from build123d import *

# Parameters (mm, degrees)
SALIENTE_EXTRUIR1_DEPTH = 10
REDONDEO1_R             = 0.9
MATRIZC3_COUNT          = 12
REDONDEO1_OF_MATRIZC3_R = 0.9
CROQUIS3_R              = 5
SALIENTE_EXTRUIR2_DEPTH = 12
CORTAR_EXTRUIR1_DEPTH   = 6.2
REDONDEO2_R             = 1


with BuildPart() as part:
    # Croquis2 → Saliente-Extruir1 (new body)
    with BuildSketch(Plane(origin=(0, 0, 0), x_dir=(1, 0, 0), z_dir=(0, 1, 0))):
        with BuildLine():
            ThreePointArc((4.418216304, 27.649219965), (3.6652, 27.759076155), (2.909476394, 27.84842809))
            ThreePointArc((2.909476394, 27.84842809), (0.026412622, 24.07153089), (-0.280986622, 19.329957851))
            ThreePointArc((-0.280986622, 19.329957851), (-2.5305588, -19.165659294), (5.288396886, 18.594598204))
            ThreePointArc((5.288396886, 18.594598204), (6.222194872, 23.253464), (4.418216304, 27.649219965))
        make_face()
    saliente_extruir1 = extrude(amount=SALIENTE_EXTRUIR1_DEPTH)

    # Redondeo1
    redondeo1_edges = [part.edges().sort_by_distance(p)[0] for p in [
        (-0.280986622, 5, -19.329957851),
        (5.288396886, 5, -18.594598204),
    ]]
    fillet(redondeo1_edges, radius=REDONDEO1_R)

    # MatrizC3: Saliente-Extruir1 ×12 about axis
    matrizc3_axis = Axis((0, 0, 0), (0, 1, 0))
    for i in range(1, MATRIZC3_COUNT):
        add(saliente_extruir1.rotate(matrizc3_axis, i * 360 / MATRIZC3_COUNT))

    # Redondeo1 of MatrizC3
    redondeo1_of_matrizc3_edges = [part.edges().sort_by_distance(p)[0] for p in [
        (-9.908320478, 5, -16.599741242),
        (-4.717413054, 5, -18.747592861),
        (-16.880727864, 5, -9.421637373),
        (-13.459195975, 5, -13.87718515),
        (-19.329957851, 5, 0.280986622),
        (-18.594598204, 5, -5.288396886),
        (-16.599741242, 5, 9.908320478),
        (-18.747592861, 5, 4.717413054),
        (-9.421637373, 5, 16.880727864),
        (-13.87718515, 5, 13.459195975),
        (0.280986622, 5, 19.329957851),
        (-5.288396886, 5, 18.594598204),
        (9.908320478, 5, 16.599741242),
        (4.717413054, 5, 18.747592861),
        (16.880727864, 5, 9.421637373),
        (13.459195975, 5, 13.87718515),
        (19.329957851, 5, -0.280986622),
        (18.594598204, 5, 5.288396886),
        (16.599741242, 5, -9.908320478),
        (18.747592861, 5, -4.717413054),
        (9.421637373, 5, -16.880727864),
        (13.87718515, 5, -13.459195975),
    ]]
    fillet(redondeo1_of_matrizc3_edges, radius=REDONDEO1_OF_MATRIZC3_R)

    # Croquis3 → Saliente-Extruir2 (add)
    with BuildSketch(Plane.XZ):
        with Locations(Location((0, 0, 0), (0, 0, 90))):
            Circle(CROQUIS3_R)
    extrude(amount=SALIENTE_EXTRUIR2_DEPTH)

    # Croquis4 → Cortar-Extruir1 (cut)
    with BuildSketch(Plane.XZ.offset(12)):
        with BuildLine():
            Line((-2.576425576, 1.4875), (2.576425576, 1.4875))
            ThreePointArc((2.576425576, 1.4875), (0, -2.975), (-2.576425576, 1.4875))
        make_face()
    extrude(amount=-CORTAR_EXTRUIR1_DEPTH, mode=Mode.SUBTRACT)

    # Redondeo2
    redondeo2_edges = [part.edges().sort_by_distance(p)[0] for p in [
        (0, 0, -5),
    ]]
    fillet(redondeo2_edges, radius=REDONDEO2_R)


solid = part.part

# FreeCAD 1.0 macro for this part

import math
import FreeCAD as App
import Part
import Sketcher

V = App.Vector
Q = App.Units.Quantity


def edges_at(feature, points):
    """Names of the edges that pass closest to the given points."""
    edges = feature.Shape.Edges
    near = lambda p: min(range(len(edges)), key=lambda i: edges[i].distToShape(Part.Vertex(*p))[0])
    return sorted({f"Edge{near(p) + 1}" for p in points})

doc = App.newDocument("Part")
body = doc.addObject("PartDesign::Body", "Body")

# Sketch on XZ plane
sketch1 = doc.addObject("Sketcher::SketchObject", "Sketch")
body.addObject(sketch1)
sketch1.AttachmentSupport = (doc.XZ_Plane, [""])
sketch1.MapMode = "FlatFace"
sketch1.addGeometry([
    Part.ArcOfCircle(Part.Circle(V(0, 0, 0), V(0, 0, 1), 28), math.radians(-84.04), math.radians(-80.92)),
    Part.ArcOfCircle(Part.Circle(V(7.7, -21.2, 0), V(0, 0, 1), 8.2), math.radians(167), math.radians(234)),
    Part.ArcOfCircle(Part.Circle(V(0, 0, 0), V(0, 0, 1), 19.3), math.radians(-74), math.radians(269)),
    Part.ArcOfCircle(Part.Circle(V(-1.9, -22.5, 0), V(0, 0, 1), 8.2), math.radians(-39), math.radians(28)),
], False)
sketch1.addConstraint([
    Sketcher.Constraint("Coincident", 0, 1, 1, 2),
    Sketcher.Constraint("Coincident", 1, 1, 2, 2),
    Sketcher.Constraint("Coincident", 2, 1, 3, 2),
    Sketcher.Constraint("Coincident", 3, 1, 0, 2),
    Sketcher.Constraint("Coincident", 0, 3, -1, 1),
    Sketcher.Constraint("Coincident", 2, 3, -1, 1),
    Sketcher.Constraint("Equal", 1, 3),
    Sketcher.Constraint("Radius", 2, Q("19.332 mm")),
    Sketcher.Constraint("Radius", 0, Q("27.999998 mm")),
    Sketcher.Constraint("Radius", 1, Q("8.208656 mm")),
    Sketcher.Constraint("DistanceY", 3, 3, -1, 1, Q("22.468202 mm")),
    Sketcher.Constraint("DistanceY", 2, 1, -1, 1, Q("18.594598 mm")),
    Sketcher.Constraint("DistanceY", 0, 1, -1, 1, Q("27.848428 mm")),
    Sketcher.Constraint("DistanceX", 0, 3, 1, 3, Q("7.713592 mm")),
])
pad1 = doc.addObject("PartDesign::Pad", "Pad")
body.addObject(pad1)
pad1.Profile = sketch1
pad1.Length = 10
pad1.Reversed = True
doc.recompute()

fillet = doc.addObject("PartDesign::Fillet", "Fillet")
body.addObject(fillet)
fillet.Base = (pad1, edges_at(pad1, [(-0.281, 5, -19.33), (5.288, 5, -18.595)]))
fillet.Radius = 0.9
doc.recompute()

polarpattern = doc.addObject("PartDesign::PolarPattern", "PolarPattern")
body.addObject(polarpattern)
polarpattern.Originals = [pad1]
polarpattern.Axis = (doc.Y_Axis, [""])
polarpattern.Angle = 360
polarpattern.Occurrences = 12
body.Tip = polarpattern
doc.recompute()

fillet2 = doc.addObject("PartDesign::Fillet", "Fillet001")
body.addObject(fillet2)
fillet2.Base = (polarpattern, edges_at(polarpattern, [
    (-9.908, 5, -16.6),
    (-4.717, 5, -18.748),
    (-16.881, 5, -9.422),
    (-13.459, 5, -13.877),
    (-19.33, 5, 0.281),
    (-18.595, 5, -5.288),
    (-16.6, 5, 9.908),
    (-18.748, 5, 4.717),
    (-9.422, 5, 16.881),
    (-13.877, 5, 13.459),
    (0.281, 5, 19.33),
    (-5.288, 5, 18.595),
    (9.908, 5, 16.6),
    (4.717, 5, 18.748),
    (16.881, 5, 9.422),
    (13.459, 5, 13.877),
    (19.33, 5, -0.281),
    (18.595, 5, 5.288),
    (16.6, 5, -9.908),
    (18.748, 5, -4.717),
    (9.422, 5, -16.881),
    (13.877, 5, -13.459),
]))
fillet2.Radius = 0.9

# Sketch on XZ plane
sketch2 = doc.addObject("Sketcher::SketchObject", "Sketch001")
body.addObject(sketch2)
sketch2.AttachmentSupport = (doc.XZ_Plane, [""])
sketch2.MapMode = "FlatFace"
sketch2.addGeometry(Part.Circle(V(0, 0, 0), V(0, 0, 1), 5), False)
sketch2.addConstraint([
    Sketcher.Constraint("Coincident", 0, 3, -1, 1),
    Sketcher.Constraint("Diameter", 0, Q("10 mm")),
])
pad2 = doc.addObject("PartDesign::Pad", "Pad001")
body.addObject(pad2)
pad2.Profile = sketch2
pad2.Length = 12

# Sketch on XZ plane
sketch3 = doc.addObject("Sketcher::SketchObject", "Sketch002")
body.addObject(sketch3)
sketch3.AttachmentSupport = (doc.XZ_Plane, [""])
sketch3.MapMode = "FlatFace"
sketch3.AttachmentOffset = App.Placement(V(0, 0, 12), App.Rotation())
sketch3.addGeometry([
    Part.LineSegment(V(2.6, 1.5, 0), V(-2.6, 1.5, 0)),
    Part.ArcOfCircle(Part.Circle(V(0, 0, 0), V(0, 0, 1), 3), math.radians(150), math.radians(390)),
], False)
sketch3.addConstraint([
    Sketcher.Constraint("Coincident", 0, 1, 1, 2),
    Sketcher.Constraint("Coincident", 1, 1, 0, 2),
    Sketcher.Constraint("Horizontal", 0),
    Sketcher.Constraint("Coincident", 1, 3, -1, 1),
    Sketcher.Constraint("Radius", 1, Q("2.975 mm")),
    Sketcher.Constraint("DistanceX", 0, 2, 0, 1, Q("5.152851 mm")),
])
pocket1 = doc.addObject("PartDesign::Pocket", "Pocket")
body.addObject(pocket1)
pocket1.Profile = sketch3
pocket1.Length = 6.2
doc.recompute()

fillet3 = doc.addObject("PartDesign::Fillet", "Fillet002")
body.addObject(fillet3)
fillet3.Base = (pocket1, edges_at(pocket1, [(0, 0, -5)]))
fillet3.Radius = 1

doc.recompute()
